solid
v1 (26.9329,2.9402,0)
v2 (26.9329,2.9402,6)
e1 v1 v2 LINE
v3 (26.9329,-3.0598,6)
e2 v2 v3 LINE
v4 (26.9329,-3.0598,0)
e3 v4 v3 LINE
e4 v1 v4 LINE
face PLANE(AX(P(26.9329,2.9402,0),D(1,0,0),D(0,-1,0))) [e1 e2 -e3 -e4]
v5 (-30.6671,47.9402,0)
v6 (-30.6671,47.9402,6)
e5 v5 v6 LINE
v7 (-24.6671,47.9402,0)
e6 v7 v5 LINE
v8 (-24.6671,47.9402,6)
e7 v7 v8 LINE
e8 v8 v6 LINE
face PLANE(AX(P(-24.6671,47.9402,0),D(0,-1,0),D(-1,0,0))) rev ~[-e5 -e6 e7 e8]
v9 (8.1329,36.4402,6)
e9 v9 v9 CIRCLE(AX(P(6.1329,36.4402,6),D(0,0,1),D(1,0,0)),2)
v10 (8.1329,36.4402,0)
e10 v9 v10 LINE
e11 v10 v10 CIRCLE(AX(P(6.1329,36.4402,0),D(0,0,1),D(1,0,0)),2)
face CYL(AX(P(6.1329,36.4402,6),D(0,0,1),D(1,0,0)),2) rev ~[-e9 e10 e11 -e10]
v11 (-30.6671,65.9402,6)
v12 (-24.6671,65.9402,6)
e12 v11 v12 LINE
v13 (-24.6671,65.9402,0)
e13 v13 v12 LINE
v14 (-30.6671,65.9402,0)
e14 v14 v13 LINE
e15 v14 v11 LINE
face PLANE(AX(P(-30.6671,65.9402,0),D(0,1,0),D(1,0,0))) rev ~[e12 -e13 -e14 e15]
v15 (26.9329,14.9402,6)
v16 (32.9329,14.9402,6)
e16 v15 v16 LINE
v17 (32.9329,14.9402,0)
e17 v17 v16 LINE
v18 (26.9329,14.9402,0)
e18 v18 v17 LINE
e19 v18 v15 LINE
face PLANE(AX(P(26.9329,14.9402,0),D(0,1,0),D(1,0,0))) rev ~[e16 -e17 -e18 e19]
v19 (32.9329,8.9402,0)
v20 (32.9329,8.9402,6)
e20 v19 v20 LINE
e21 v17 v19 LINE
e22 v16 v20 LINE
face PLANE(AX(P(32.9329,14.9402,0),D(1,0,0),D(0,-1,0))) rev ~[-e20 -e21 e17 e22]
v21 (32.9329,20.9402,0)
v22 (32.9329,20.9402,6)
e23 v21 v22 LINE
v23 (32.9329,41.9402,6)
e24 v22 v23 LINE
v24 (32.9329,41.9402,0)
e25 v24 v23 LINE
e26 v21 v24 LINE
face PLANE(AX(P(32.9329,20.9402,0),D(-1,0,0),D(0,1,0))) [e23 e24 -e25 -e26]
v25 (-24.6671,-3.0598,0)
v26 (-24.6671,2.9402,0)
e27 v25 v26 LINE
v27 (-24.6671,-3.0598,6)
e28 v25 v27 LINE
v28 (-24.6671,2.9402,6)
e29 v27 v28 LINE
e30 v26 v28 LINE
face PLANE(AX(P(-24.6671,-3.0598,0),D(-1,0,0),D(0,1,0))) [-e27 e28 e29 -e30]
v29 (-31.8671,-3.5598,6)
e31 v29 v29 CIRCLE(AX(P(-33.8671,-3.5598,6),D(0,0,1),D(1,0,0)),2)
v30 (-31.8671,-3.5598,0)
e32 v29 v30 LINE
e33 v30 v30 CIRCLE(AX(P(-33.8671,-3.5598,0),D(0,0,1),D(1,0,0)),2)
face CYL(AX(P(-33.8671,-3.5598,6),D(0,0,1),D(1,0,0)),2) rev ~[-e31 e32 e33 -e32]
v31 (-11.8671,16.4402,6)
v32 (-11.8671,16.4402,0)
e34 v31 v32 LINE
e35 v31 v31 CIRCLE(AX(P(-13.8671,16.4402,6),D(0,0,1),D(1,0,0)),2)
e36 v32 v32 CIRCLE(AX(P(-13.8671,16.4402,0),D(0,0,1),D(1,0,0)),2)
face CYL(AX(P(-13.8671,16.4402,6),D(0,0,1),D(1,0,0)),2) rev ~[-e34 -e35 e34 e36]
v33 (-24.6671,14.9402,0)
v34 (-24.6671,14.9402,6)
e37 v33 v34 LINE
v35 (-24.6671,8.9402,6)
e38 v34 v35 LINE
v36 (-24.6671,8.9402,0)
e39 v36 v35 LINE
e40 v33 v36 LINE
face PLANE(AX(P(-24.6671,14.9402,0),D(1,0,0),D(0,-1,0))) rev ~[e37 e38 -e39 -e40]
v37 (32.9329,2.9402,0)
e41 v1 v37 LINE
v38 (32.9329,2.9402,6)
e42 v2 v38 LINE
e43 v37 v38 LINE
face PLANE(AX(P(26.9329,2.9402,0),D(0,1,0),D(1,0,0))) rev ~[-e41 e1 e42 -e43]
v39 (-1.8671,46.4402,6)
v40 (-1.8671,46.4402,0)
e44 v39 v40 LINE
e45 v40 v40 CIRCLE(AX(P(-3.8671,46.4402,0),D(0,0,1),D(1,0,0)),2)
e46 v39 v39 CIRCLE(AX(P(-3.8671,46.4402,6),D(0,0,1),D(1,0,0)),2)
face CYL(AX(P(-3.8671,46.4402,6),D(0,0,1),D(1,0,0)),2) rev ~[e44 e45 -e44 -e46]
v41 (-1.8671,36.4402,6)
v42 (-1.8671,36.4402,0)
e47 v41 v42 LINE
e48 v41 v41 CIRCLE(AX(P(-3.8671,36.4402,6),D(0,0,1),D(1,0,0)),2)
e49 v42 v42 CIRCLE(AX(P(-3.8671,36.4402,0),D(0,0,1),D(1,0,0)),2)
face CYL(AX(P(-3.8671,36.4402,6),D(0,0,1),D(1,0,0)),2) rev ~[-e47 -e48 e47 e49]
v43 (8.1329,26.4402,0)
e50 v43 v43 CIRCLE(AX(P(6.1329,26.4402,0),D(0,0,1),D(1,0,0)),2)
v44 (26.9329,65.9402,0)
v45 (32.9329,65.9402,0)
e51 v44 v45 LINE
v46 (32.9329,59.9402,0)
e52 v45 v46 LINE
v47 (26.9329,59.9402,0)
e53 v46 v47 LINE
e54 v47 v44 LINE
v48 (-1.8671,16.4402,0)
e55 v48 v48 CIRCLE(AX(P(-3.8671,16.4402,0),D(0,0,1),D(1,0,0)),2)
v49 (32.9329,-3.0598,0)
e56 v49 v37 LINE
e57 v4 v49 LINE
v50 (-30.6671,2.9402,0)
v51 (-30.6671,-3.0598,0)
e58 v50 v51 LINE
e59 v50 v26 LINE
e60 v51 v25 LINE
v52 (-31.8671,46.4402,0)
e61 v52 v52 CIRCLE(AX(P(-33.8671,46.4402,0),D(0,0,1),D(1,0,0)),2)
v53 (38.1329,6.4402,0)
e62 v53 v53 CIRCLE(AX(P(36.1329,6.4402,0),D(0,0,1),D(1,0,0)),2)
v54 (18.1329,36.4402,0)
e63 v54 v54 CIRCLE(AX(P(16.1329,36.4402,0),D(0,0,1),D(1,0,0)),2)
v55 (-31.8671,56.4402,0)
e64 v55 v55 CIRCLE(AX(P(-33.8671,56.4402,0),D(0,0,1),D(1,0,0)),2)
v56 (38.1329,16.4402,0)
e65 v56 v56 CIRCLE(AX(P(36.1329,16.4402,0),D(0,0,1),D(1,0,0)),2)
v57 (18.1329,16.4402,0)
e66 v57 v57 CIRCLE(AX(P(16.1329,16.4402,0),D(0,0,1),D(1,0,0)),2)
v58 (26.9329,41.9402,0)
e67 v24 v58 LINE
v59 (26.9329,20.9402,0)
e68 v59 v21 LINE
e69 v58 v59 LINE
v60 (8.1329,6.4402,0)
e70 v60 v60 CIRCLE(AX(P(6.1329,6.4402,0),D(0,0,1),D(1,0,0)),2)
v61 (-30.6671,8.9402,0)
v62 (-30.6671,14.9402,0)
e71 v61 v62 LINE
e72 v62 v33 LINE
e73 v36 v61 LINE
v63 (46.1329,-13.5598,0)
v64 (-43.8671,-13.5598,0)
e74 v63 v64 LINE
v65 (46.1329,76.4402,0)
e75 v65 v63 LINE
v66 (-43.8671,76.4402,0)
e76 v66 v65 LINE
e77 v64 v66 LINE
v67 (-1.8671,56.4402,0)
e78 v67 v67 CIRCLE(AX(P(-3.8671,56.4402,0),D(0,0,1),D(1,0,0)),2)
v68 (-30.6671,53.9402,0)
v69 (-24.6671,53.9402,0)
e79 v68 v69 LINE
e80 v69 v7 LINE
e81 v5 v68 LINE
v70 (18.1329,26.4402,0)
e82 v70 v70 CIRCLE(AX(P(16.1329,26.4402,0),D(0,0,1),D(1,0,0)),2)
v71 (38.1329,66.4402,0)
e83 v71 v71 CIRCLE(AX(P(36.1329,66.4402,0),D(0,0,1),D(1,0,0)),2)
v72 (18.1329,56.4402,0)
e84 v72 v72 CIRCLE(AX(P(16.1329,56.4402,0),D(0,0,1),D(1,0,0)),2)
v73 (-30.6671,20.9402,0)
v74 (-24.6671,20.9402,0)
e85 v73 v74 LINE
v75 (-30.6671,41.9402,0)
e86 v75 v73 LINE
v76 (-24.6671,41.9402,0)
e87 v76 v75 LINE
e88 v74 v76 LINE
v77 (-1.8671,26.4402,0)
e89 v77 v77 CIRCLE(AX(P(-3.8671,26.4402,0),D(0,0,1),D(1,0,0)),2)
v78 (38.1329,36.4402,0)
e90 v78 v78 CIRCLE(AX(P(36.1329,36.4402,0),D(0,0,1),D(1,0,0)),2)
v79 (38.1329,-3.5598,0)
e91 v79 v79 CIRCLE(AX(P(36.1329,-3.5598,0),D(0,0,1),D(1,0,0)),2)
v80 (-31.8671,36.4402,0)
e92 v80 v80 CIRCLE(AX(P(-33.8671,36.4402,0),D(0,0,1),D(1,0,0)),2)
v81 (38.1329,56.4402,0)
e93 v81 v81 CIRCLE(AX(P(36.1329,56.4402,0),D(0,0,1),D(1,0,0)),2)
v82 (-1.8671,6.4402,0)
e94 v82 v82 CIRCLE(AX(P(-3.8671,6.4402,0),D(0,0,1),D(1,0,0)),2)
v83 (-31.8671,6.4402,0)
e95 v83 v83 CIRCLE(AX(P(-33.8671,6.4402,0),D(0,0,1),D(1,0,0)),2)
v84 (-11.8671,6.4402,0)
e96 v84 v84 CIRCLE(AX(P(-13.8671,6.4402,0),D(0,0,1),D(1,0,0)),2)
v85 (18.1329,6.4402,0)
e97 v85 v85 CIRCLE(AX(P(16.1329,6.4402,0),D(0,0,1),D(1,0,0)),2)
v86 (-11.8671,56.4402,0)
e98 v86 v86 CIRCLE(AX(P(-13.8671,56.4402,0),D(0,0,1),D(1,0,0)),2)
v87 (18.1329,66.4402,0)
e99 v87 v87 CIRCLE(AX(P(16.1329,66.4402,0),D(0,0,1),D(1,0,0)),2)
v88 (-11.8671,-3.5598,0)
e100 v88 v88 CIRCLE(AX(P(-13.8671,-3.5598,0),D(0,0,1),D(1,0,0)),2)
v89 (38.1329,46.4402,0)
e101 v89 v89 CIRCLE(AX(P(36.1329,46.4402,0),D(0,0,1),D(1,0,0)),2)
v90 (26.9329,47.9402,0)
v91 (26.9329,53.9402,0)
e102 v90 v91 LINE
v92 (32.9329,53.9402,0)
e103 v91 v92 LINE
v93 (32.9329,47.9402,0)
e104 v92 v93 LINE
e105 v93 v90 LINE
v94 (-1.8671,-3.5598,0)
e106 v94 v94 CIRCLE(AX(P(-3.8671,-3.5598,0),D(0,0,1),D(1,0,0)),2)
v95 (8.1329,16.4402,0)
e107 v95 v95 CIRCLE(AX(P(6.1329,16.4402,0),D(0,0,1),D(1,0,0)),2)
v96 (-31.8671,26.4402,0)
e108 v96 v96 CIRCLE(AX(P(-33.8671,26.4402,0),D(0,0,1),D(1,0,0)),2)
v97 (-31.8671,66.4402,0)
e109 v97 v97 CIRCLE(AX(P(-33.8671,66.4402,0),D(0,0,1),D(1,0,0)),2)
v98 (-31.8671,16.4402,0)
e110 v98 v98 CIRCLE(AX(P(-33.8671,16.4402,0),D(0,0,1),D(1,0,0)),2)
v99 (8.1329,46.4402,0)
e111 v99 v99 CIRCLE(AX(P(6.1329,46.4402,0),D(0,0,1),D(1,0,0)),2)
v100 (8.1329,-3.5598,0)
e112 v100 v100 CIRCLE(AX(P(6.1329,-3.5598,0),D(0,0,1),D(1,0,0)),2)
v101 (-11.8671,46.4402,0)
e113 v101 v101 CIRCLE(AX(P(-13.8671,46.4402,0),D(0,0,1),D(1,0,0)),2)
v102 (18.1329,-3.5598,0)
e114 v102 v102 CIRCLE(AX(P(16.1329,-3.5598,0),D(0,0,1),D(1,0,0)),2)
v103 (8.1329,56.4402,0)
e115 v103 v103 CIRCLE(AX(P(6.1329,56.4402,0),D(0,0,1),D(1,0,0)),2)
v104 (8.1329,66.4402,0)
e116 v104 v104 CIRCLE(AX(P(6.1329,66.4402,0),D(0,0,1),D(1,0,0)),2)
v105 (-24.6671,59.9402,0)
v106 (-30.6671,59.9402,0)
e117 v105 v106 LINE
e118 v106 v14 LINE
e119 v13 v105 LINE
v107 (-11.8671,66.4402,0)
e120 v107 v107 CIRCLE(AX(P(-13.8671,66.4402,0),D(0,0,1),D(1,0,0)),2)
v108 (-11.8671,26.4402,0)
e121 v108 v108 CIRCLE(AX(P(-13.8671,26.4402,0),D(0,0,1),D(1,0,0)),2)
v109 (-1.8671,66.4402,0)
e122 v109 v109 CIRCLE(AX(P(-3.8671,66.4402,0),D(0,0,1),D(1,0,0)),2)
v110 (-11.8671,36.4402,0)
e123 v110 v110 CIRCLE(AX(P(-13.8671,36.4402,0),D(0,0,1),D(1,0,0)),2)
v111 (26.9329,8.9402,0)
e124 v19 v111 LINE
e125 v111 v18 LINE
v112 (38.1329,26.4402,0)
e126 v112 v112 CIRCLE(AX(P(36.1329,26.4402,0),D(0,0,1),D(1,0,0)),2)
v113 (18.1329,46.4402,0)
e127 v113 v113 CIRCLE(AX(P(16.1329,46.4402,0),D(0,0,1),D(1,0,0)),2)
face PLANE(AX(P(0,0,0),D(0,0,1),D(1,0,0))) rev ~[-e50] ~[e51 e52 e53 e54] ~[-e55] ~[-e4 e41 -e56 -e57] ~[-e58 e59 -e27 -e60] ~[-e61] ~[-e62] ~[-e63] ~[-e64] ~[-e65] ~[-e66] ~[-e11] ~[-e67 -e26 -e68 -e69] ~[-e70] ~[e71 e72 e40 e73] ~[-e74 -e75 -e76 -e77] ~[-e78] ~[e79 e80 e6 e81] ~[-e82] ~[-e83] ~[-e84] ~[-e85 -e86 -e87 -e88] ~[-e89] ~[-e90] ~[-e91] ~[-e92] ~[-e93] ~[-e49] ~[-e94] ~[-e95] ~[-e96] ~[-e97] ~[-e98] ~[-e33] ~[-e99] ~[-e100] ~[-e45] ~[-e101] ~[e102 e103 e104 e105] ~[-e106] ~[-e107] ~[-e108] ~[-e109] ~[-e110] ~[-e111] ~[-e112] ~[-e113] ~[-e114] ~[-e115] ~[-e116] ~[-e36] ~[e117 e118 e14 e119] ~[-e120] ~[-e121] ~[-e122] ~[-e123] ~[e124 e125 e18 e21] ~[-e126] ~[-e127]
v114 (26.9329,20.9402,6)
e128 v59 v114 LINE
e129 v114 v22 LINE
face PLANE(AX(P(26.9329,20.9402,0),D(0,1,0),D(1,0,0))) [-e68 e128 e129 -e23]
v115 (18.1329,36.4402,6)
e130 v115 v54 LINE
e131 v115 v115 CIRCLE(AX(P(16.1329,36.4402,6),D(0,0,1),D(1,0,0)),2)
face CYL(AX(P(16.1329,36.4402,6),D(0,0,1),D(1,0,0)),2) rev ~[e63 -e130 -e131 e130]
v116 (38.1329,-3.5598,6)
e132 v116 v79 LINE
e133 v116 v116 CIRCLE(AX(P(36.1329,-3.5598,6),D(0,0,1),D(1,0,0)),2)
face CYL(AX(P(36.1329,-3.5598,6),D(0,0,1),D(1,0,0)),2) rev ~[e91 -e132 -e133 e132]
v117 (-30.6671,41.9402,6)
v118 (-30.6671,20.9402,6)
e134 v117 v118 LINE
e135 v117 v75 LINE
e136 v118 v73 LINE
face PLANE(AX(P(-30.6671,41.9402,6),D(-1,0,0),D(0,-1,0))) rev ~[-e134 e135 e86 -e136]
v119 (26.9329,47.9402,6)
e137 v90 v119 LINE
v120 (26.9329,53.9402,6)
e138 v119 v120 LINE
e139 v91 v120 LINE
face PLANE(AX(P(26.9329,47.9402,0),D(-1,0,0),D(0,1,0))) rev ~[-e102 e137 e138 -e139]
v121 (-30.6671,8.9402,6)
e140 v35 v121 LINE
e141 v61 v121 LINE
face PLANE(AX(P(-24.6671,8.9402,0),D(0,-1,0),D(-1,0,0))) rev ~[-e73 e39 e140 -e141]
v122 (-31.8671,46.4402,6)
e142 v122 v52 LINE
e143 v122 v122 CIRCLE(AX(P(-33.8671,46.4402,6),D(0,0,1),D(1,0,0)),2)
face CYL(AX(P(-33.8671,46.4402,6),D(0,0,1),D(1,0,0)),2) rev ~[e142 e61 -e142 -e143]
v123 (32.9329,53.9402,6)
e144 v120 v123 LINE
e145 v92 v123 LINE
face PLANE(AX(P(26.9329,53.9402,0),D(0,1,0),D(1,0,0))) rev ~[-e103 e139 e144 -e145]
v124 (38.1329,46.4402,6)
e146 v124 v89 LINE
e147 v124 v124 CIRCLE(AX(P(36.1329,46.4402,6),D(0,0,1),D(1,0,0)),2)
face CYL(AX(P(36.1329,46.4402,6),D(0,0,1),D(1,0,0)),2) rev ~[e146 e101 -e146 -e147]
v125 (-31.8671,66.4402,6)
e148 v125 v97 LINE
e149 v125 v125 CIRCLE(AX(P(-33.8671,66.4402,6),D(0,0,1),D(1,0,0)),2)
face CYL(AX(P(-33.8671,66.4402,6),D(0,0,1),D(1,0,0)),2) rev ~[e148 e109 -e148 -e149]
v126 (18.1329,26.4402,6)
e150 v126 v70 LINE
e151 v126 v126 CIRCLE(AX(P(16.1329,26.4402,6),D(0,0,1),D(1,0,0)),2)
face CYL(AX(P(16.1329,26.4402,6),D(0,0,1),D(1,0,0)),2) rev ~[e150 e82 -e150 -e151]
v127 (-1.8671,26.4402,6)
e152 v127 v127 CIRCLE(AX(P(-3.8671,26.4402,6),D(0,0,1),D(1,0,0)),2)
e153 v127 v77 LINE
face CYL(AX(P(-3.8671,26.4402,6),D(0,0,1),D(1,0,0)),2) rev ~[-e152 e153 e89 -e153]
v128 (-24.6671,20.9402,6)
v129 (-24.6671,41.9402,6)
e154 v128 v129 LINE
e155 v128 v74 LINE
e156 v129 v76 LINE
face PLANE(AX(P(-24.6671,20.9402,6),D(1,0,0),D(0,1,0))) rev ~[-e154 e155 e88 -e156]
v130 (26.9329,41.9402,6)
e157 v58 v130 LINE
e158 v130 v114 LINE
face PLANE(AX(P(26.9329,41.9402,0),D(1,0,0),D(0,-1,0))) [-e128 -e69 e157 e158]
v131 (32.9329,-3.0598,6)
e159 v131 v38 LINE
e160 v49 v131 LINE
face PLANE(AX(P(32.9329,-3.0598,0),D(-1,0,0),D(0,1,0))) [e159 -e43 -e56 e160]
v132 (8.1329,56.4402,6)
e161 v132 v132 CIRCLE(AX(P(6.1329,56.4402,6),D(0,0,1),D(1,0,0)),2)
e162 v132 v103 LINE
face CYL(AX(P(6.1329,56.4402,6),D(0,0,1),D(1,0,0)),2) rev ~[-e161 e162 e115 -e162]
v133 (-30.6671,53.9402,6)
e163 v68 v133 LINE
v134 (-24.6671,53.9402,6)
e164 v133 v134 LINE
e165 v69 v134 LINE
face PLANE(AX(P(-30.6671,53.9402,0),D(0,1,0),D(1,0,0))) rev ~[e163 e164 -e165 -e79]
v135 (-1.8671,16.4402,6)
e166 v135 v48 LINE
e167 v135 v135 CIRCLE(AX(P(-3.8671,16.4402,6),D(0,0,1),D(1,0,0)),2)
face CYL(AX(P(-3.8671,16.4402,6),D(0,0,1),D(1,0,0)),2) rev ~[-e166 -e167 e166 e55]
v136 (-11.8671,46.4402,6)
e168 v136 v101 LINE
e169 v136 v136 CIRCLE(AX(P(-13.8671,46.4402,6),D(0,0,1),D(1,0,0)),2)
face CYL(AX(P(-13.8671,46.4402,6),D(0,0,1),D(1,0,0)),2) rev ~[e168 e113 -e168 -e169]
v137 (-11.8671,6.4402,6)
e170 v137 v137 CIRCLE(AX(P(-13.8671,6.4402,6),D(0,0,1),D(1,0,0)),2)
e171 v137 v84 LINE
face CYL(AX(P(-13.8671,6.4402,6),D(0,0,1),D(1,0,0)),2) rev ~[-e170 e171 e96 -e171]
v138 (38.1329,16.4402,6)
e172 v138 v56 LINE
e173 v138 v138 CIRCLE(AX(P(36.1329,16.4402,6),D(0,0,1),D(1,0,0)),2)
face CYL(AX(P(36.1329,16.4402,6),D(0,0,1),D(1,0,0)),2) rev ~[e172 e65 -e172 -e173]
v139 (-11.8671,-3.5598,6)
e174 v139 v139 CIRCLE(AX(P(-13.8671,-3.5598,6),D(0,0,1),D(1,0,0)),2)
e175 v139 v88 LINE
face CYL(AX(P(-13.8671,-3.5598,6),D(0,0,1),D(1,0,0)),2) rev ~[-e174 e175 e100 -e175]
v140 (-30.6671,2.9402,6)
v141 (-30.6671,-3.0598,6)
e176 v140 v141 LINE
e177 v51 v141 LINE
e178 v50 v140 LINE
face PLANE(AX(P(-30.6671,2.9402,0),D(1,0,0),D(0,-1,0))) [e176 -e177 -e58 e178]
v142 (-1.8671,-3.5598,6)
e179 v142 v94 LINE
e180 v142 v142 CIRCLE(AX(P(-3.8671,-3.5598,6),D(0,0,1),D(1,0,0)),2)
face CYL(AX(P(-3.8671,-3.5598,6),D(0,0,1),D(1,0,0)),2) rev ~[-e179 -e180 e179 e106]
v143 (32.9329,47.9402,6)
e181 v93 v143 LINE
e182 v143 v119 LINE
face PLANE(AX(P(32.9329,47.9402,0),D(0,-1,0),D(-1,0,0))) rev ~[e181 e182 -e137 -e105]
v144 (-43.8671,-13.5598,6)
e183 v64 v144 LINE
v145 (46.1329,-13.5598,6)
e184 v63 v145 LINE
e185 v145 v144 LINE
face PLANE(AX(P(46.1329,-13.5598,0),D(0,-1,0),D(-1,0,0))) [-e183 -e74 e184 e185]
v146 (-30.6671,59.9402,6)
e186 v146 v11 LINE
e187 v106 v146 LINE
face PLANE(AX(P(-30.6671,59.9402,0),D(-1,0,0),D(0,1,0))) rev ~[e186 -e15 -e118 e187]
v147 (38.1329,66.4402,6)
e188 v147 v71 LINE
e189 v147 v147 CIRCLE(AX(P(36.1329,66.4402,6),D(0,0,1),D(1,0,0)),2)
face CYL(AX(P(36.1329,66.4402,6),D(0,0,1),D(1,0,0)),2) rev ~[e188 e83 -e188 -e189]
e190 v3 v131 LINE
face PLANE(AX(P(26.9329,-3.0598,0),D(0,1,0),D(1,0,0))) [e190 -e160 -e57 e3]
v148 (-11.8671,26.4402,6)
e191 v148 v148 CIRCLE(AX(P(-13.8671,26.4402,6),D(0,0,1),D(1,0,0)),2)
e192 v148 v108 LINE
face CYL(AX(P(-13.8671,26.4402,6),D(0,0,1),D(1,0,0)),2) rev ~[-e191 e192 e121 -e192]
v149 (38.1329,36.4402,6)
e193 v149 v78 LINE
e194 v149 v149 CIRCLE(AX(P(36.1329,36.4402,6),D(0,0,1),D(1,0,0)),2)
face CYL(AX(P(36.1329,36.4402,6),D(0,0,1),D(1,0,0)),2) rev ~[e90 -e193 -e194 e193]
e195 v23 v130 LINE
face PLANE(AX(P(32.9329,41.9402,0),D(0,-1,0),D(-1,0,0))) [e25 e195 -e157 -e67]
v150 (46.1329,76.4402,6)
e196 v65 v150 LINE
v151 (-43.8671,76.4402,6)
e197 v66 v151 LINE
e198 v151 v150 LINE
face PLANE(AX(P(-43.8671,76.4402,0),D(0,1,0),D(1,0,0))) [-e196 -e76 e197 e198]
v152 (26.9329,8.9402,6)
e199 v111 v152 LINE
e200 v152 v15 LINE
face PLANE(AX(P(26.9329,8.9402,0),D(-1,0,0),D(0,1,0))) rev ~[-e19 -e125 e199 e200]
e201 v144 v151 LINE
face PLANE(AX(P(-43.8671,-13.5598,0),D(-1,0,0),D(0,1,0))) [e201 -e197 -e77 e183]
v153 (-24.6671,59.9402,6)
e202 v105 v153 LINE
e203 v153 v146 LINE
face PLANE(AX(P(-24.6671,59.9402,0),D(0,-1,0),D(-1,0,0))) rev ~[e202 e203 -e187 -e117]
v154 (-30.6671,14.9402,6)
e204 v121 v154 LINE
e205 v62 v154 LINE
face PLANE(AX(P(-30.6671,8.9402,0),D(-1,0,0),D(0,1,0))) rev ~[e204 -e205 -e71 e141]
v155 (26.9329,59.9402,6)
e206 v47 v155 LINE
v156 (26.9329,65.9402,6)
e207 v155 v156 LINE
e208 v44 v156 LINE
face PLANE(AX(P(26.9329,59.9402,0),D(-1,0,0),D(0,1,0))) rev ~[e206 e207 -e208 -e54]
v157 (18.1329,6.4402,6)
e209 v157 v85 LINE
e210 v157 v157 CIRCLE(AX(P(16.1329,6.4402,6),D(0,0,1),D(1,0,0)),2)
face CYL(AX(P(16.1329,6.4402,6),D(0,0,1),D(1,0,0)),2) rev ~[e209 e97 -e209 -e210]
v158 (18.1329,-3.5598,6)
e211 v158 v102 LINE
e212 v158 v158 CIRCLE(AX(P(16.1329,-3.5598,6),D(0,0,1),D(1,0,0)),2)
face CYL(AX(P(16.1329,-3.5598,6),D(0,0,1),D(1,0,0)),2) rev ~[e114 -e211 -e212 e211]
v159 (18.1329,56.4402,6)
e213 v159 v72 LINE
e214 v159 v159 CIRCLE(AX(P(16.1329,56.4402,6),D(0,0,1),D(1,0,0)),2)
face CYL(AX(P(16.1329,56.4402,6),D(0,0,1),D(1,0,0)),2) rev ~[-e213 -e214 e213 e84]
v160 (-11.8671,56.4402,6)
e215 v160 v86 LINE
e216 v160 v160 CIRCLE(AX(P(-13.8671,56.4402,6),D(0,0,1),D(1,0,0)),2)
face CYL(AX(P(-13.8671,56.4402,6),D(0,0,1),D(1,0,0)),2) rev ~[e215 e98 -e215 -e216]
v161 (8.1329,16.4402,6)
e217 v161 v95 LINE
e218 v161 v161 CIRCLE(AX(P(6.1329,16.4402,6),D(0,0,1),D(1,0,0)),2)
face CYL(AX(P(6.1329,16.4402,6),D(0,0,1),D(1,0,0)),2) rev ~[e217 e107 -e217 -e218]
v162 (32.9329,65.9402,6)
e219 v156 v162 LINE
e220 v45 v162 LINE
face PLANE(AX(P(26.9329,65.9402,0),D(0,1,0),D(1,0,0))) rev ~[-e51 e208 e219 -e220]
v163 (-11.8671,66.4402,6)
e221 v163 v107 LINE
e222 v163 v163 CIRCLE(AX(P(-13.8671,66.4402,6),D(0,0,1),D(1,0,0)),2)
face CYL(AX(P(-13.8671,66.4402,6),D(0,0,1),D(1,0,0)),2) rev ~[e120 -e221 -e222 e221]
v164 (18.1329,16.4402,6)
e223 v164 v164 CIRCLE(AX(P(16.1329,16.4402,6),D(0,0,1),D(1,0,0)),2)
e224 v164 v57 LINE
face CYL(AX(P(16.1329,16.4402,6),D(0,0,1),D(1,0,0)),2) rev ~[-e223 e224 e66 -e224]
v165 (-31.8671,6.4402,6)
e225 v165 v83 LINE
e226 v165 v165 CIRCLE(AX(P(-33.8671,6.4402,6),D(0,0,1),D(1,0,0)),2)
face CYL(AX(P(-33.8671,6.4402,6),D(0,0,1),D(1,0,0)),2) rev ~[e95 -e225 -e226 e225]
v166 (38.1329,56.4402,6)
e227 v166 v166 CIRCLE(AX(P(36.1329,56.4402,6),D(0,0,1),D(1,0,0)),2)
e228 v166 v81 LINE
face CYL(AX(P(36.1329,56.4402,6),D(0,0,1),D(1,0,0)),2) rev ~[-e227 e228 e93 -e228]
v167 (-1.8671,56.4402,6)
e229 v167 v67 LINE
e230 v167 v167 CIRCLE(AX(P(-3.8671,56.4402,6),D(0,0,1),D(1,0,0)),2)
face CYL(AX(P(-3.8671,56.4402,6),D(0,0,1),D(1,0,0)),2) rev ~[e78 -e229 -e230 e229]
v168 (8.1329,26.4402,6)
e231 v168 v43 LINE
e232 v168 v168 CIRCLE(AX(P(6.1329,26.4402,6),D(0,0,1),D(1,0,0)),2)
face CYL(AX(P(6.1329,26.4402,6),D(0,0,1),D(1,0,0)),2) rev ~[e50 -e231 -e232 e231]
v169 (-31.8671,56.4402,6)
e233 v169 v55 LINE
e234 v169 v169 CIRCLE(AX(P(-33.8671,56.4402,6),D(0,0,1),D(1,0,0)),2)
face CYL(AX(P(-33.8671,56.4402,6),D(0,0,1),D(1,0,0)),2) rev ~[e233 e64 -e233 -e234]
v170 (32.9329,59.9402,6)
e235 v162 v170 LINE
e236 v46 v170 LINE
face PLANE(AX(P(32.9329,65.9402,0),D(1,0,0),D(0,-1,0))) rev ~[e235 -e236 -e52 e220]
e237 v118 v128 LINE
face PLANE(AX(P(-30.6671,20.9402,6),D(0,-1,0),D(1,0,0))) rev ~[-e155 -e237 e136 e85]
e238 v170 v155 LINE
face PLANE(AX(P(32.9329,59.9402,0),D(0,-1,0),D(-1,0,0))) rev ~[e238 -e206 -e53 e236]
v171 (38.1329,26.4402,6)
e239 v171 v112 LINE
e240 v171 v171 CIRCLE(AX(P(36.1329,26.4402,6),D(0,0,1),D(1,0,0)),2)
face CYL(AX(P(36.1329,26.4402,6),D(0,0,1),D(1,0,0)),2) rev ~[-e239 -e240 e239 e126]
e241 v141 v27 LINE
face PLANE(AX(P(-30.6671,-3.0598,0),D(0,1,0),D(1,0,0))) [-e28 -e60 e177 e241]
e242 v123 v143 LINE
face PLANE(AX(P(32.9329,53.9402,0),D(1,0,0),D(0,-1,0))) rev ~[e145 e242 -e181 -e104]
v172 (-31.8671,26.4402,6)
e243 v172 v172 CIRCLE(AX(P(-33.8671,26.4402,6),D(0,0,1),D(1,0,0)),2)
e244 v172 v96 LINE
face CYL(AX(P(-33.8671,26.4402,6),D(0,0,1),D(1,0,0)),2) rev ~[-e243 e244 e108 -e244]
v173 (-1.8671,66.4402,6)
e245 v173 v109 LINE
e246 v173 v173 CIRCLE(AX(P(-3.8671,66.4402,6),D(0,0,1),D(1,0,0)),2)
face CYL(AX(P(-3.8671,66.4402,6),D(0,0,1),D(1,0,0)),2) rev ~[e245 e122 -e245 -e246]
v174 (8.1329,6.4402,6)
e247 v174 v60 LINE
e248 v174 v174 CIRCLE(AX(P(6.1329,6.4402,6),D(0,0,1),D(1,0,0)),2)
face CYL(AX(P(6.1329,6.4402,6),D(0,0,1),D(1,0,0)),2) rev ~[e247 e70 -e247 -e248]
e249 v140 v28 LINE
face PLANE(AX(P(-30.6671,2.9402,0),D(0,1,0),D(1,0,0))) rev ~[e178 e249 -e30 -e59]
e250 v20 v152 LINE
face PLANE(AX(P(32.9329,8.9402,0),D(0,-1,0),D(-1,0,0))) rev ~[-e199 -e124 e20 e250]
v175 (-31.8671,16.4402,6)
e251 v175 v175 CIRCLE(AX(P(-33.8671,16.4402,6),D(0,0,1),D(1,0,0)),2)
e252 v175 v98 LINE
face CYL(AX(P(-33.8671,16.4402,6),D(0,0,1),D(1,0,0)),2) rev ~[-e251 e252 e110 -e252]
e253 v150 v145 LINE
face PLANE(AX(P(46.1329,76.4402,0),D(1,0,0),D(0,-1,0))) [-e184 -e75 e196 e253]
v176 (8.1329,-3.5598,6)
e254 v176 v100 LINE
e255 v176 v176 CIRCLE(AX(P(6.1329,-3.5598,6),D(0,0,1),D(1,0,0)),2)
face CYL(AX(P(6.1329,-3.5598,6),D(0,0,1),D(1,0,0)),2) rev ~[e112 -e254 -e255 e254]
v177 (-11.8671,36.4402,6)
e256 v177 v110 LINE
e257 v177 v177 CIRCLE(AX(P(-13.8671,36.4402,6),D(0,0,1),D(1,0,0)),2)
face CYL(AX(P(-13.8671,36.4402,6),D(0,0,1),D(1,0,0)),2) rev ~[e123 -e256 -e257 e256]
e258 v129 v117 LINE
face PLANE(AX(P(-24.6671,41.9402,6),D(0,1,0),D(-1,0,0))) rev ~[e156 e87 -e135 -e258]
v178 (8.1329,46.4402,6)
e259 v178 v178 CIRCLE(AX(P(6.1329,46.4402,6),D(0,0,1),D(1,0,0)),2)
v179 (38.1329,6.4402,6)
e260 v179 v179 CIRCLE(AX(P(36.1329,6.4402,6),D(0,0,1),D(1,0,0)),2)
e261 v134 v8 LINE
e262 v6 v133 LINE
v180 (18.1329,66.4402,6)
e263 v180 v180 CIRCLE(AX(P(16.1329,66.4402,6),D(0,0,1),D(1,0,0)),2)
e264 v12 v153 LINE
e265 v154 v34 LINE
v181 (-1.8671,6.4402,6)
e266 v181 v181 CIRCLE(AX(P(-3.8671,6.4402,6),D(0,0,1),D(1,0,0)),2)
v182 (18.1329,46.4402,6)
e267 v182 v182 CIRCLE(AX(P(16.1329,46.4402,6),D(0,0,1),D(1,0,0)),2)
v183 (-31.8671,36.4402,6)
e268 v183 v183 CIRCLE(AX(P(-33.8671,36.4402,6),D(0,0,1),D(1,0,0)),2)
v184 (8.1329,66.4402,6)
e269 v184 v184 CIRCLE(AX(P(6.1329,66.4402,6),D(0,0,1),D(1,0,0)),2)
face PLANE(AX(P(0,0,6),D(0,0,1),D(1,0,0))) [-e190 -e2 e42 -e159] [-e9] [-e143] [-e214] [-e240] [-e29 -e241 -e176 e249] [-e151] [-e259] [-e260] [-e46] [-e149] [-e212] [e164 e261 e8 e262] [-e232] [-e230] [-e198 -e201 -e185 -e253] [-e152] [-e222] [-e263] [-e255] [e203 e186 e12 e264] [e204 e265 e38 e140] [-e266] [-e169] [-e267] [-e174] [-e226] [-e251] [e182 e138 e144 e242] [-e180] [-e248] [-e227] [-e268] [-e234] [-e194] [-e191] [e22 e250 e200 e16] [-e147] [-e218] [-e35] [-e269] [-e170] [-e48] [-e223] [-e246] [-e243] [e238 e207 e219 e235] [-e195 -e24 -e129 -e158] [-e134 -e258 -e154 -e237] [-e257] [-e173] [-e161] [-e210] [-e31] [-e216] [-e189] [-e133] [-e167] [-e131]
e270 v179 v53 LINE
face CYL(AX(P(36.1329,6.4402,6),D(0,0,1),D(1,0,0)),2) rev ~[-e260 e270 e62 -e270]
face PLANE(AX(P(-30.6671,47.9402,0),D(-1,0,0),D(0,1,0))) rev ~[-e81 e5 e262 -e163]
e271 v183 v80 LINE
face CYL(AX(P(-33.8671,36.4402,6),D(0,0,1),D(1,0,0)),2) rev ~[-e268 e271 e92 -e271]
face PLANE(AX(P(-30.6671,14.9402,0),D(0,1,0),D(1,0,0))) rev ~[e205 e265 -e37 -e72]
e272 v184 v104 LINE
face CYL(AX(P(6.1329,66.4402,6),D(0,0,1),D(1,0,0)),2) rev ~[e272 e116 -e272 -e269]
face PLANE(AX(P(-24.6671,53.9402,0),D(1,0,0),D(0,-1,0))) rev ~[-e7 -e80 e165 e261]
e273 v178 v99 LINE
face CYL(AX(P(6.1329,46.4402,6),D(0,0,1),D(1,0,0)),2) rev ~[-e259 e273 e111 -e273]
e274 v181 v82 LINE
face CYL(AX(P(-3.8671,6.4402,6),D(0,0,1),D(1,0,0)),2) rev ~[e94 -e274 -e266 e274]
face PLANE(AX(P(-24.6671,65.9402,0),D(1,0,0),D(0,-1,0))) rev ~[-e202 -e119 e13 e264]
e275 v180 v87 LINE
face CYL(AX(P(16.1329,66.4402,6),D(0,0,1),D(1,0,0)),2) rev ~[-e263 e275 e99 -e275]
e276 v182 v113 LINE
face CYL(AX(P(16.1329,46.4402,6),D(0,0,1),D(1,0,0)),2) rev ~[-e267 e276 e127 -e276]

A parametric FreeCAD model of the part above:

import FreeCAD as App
import Part
import Sketcher

V = App.Vector
Q = App.Units.Quantity


def add_polygon(sketch, points):
    """Adds a closed chain of lines whose ends are joined by coincident constraints."""
    first, n = sketch.GeometryCount, len(points)
    for a, b in zip(points, points[1:] + points[:1]):
        sketch.addGeometry(Part.LineSegment(App.Vector(*a, 0), App.Vector(*b, 0)), False)
    for i in range(n):
        sketch.addConstraint(Sketcher.Constraint("Coincident", first + i, 2, first + (i + 1) % n, 1))

doc = App.newDocument("Part")
body = doc.addObject("PartDesign::Body", "Body")

# Sketch on XY plane
sketch1 = doc.addObject("Sketcher::SketchObject", "Sketch")
body.addObject(sketch1)
sketch1.AttachmentSupport = (doc.XY_Plane, [""])
sketch1.MapMode = "FlatFace"
add_polygon(sketch1, [(46, 76), (-44, 76), (-44, -14), (46, -14)])  # lines 0-3
sketch1.addConstraint([
    Sketcher.Constraint("Horizontal", 0),
    Sketcher.Constraint("Vertical", 1),
    Sketcher.Constraint("Horizontal", 2),
    Sketcher.Constraint("Vertical", 3),
    Sketcher.Constraint("Equal", 2, 1),
    Sketcher.Constraint("DistanceX", 0, 2, 0, 1, Q("90 mm")),
    Sketcher.Constraint("DistanceX", 0, 2, -1, 1, Q("43.867 mm")),
    Sketcher.Constraint("DistanceY", -1, 1, 0, 2, Q("76.4402 mm")),
])
pad1 = doc.addObject("PartDesign::Pad", "Pad")
body.addObject(pad1)
pad1.Profile = sketch1
pad1.Length = 6

# Sketch on XY plane
sketch2 = doc.addObject("Sketcher::SketchObject", "Sketch001")
body.addObject(sketch2)
sketch2.AttachmentSupport = (doc.XY_Plane, [""])
sketch2.MapMode = "FlatFace"
add_polygon(sketch2, [(-25, 15), (-25, 9), (-31, 9), (-31, 15)])  # lines 0-3
add_polygon(sketch2, [(-31, 3), (-25, 3), (-25, -3), (-31, -3)])  # lines 4-7
add_polygon(sketch2, [(-25, 54), (-25, 48), (-31, 48), (-31, 54)])  # lines 8-11
add_polygon(sketch2, [(-25, 66), (-25, 60), (-31, 60), (-31, 66)])  # lines 12-15
add_polygon(sketch2, [(33, 54), (33, 48), (27, 48), (27, 54)])  # lines 16-19
add_polygon(sketch2, [(33, 66), (33, 60), (27, 60), (27, 66)])  # lines 20-23
add_polygon(sketch2, [(27, 9), (27, 15), (33, 15), (33, 9)])  # lines 24-27
add_polygon(sketch2, [(27, -3), (27, 3), (33, 3), (33, -3)])  # lines 28-31
sketch2.addConstraint([
    Sketcher.Constraint("Vertical", 0),
    Sketcher.Constraint("Horizontal", 1),
    Sketcher.Constraint("Vertical", 2),
    Sketcher.Constraint("Horizontal", 3),
    Sketcher.Constraint("Horizontal", 4),
    Sketcher.Constraint("Vertical", 5),
    Sketcher.Constraint("Horizontal", 6),
    Sketcher.Constraint("Vertical", 7),
    Sketcher.Constraint("Vertical", 8),
    Sketcher.Constraint("Horizontal", 9),
    Sketcher.Constraint("Vertical", 10),
    Sketcher.Constraint("Horizontal", 11),
    Sketcher.Constraint("Vertical", 12),
    Sketcher.Constraint("Horizontal", 13),
    Sketcher.Constraint("Vertical", 14),
    Sketcher.Constraint("Horizontal", 15),
    Sketcher.Constraint("Vertical", 16),
    Sketcher.Constraint("Horizontal", 17),
    Sketcher.Constraint("Vertical", 18),
    Sketcher.Constraint("Horizontal", 19),
    Sketcher.Constraint("Vertical", 20),
    Sketcher.Constraint("Horizontal", 21),
    Sketcher.Constraint("Vertical", 22),
    Sketcher.Constraint("Horizontal", 23),
    Sketcher.Constraint("Vertical", 24),
    Sketcher.Constraint("Horizontal", 25),
    Sketcher.Constraint("Vertical", 26),
    Sketcher.Constraint("Horizontal", 27),
    Sketcher.Constraint("Vertical", 28),
    Sketcher.Constraint("Horizontal", 29),
    Sketcher.Constraint("Vertical", 30),
    Sketcher.Constraint("Horizontal", 31),
    Sketcher.Constraint("Horizontal", 9, 2, 16, 2),
    Sketcher.Constraint("Horizontal", 11, 2, 18, 2),
    Sketcher.Constraint("Horizontal", 13, 2, 20, 2),
    Sketcher.Constraint("Horizontal", 15, 2, 22, 2),
    Sketcher.Constraint("Horizontal", 3, 2, 24, 2),
    Sketcher.Constraint("Horizontal", 1, 2, 26, 2),
    Sketcher.Constraint("Horizontal", 7, 2, 28, 2),
    Sketcher.Constraint("Horizontal", 6, 2, 30, 2),
    Sketcher.Constraint("Vertical", 3, 2, 4, 2),
    Sketcher.Constraint("Vertical", 2, 2, 6, 2),
    Sketcher.Constraint("Vertical", 5, 2, 8, 2),
    Sketcher.Constraint("Vertical", 7, 2, 9, 2),
    Sketcher.Constraint("Vertical", 11, 2, 12, 2),
    Sketcher.Constraint("Vertical", 10, 2, 13, 2),
    Sketcher.Constraint("Vertical", 19, 2, 20, 2),
    Sketcher.Constraint("Vertical", 18, 2, 21, 2),
    Sketcher.Constraint("Vertical", 22, 2, 24, 2),
    Sketcher.Constraint("Vertical", 23, 2, 25, 2),
    Sketcher.Constraint("Vertical", 27, 2, 28, 2),
    Sketcher.Constraint("Vertical", 26, 2, 29, 2),
    Sketcher.Constraint("Equal", 15, 17),
    Sketcher.Constraint("Equal", 31, 0),
    Sketcher.Constraint("Equal", 2, 5),
    Sketcher.Constraint("Equal", 7, 8),
    Sketcher.Constraint("Equal", 10, 12),
    Sketcher.Constraint("DistanceX", 1, 2, 1, 1, Q("6 mm")),
    Sketcher.Constraint("DistanceY", 4, 2, 0, 2, Q("6 mm")),
    Sketcher.Constraint("DistanceY", 11, 2, 12, 2, Q("6 mm")),
    Sketcher.Constraint("DistanceY", 3, 2, 8, 2, Q("33 mm")),
    Sketcher.Constraint("DistanceX", 8, 2, 16, 2, Q("57.6 mm")),
    Sketcher.Constraint("DistanceX", 0, 2, -1, 1, Q("24.667 mm")),
    Sketcher.Constraint("DistanceY", -1, 1, 0, 2, Q("8.9402 mm")),
])
pocket1 = doc.addObject("PartDesign::Pocket", "Pocket")
body.addObject(pocket1)
pocket1.Profile = sketch2
pocket1.Length = 6
pocket1.Reversed = True

# Sketch on XY plane
sketch3 = doc.addObject("Sketcher::SketchObject", "Sketch002")
body.addObject(sketch3)
sketch3.AttachmentSupport = (doc.XY_Plane, [""])
sketch3.MapMode = "FlatFace"
sketch3.AttachmentOffset = App.Placement(V(0, 0, 6), App.Rotation())
sketch3.addGeometry([
    Part.Circle(V(-33.9, -3.6, 0), V(0, 0, 1), 2),  # 0
    Part.Circle(V(-33.9, 6.4, 0), V(0, 0, 1), 2),  # 1
    Part.Circle(V(-33.9, 16.4, 0), V(0, 0, 1), 2),  # 2
    Part.Circle(V(-33.9, 26.4, 0), V(0, 0, 1), 2),  # 3
    Part.Circle(V(-33.9, 36.4, 0), V(0, 0, 1), 2),  # 4
    Part.Circle(V(-33.9, 46.4, 0), V(0, 0, 1), 2),  # 5
    Part.Circle(V(-33.9, 56.4, 0), V(0, 0, 1), 2),  # 6
    Part.Circle(V(-33.9, 66.4, 0), V(0, 0, 1), 2),  # 7
    Part.Circle(V(-13.9, -3.6, 0), V(0, 0, 1), 2),  # 8
    Part.Circle(V(-13.9, 6.4, 0), V(0, 0, 1), 2),  # 9
    Part.Circle(V(-13.9, 16.4, 0), V(0, 0, 1), 2),  # 10
    Part.Circle(V(-13.9, 26.4, 0), V(0, 0, 1), 2),  # 11
    Part.Circle(V(-13.9, 36.4, 0), V(0, 0, 1), 2),  # 12
    Part.Circle(V(-13.9, 46.4, 0), V(0, 0, 1), 2),  # 13
    Part.Circle(V(-13.9, 56.4, 0), V(0, 0, 1), 2),  # 14
    Part.Circle(V(-13.9, 66.4, 0), V(0, 0, 1), 2),  # 15
    Part.Circle(V(-3.9, -3.6, 0), V(0, 0, 1), 2),  # 16
    Part.Circle(V(-3.9, 6.4, 0), V(0, 0, 1), 2),  # 17
    Part.Circle(V(-3.9, 16.4, 0), V(0, 0, 1), 2),  # 18
    Part.Circle(V(-3.9, 26.4, 0), V(0, 0, 1), 2),  # 19
    Part.Circle(V(-3.9, 36.4, 0), V(0, 0, 1), 2),  # 20
    Part.Circle(V(-3.9, 46.4, 0), V(0, 0, 1), 2),  # 21
    Part.Circle(V(-3.9, 56.4, 0), V(0, 0, 1), 2),  # 22
    Part.Circle(V(-3.9, 66.4, 0), V(0, 0, 1), 2),  # 23
    Part.Circle(V(6.1, -3.6, 0), V(0, 0, 1), 2),  # 24
    Part.Circle(V(6.1, 6.4, 0), V(0, 0, 1), 2),  # 25
    Part.Circle(V(6.1, 16.4, 0), V(0, 0, 1), 2),  # 26
    Part.Circle(V(6.1, 26.4, 0), V(0, 0, 1), 2),  # 27
    Part.Circle(V(6.1, 36.4, 0), V(0, 0, 1), 2),  # 28
    Part.Circle(V(6.1, 46.4, 0), V(0, 0, 1), 2),  # 29
    Part.Circle(V(6.1, 56.4, 0), V(0, 0, 1), 2),  # 30
    Part.Circle(V(6.1, 66.4, 0), V(0, 0, 1), 2),  # 31
    Part.Circle(V(16.1, -3.6, 0), V(0, 0, 1), 2),  # 32
    Part.Circle(V(16.1, 6.4, 0), V(0, 0, 1), 2),  # 33
    Part.Circle(V(16.1, 16.4, 0), V(0, 0, 1), 2),  # 34
    Part.Circle(V(16.1, 26.4, 0), V(0, 0, 1), 2),  # 35
    Part.Circle(V(16.1, 36.4, 0), V(0, 0, 1), 2),  # 36
    Part.Circle(V(16.1, 46.4, 0), V(0, 0, 1), 2),  # 37
    Part.Circle(V(16.1, 56.4, 0), V(0, 0, 1), 2),  # 38
    Part.Circle(V(16.1, 66.4, 0), V(0, 0, 1), 2),  # 39
    Part.Circle(V(36.1, -3.6, 0), V(0, 0, 1), 2),  # 40
    Part.Circle(V(36.1, 6.4, 0), V(0, 0, 1), 2),  # 41
    Part.Circle(V(36.1, 16.4, 0), V(0, 0, 1), 2),  # 42
    Part.Circle(V(36.1, 26.4, 0), V(0, 0, 1), 2),  # 43
    Part.Circle(V(36.1, 36.4, 0), V(0, 0, 1), 2),  # 44
    Part.Circle(V(36.1, 46.4, 0), V(0, 0, 1), 2),  # 45
    Part.Circle(V(36.1, 56.4, 0), V(0, 0, 1), 2),  # 46
    Part.Circle(V(36.1, 66.4, 0), V(0, 0, 1), 2),  # 47
], False)
sketch3.addConstraint([
    Sketcher.Constraint("Equal", 0, 1),
    Sketcher.Constraint("Equal", 1, 2),
    Sketcher.Constraint("Equal", 2, 3),
    Sketcher.Constraint("Equal", 3, 4),
    Sketcher.Constraint("Equal", 4, 5),
    Sketcher.Constraint("Equal", 5, 6),
    Sketcher.Constraint("Equal", 6, 7),
    Sketcher.Constraint("Equal", 7, 8),
    Sketcher.Constraint("Equal", 8, 9),
    Sketcher.Constraint("Equal", 9, 10),
    Sketcher.Constraint("Equal", 10, 11),
    Sketcher.Constraint("Equal", 11, 12),
    Sketcher.Constraint("Equal", 12, 13),
    Sketcher.Constraint("Equal", 13, 14),
    Sketcher.Constraint("Equal", 14, 15),
    Sketcher.Constraint("Equal", 15, 16),
    Sketcher.Constraint("Equal", 16, 17),
    Sketcher.Constraint("Equal", 17, 18),
    Sketcher.Constraint("Equal", 18, 19),
    Sketcher.Constraint("Equal", 19, 20),
    Sketcher.Constraint("Equal", 20, 21),
    Sketcher.Constraint("Equal", 21, 22),
    Sketcher.Constraint("Equal", 22, 23),
    Sketcher.Constraint("Equal", 23, 24),
    Sketcher.Constraint("Equal", 24, 25),
    Sketcher.Constraint("Equal", 25, 26),
    Sketcher.Constraint("Equal", 26, 27),
    Sketcher.Constraint("Equal", 27, 28),
    Sketcher.Constraint("Equal", 28, 29),
    Sketcher.Constraint("Equal", 29, 30),
    Sketcher.Constraint("Equal", 30, 31),
    Sketcher.Constraint("Equal", 31, 32),
    Sketcher.Constraint("Equal", 32, 33),
    Sketcher.Constraint("Equal", 33, 34),
    Sketcher.Constraint("Equal", 34, 35),
    Sketcher.Constraint("Equal", 35, 36),
    Sketcher.Constraint("Equal", 36, 37),
    Sketcher.Constraint("Equal", 37, 38),
    Sketcher.Constraint("Equal", 38, 39),
    Sketcher.Constraint("Equal", 39, 40),
    Sketcher.Constraint("Equal", 40, 41),
    Sketcher.Constraint("Equal", 41, 42),
    Sketcher.Constraint("Equal", 42, 43),
    Sketcher.Constraint("Equal", 43, 44),
    Sketcher.Constraint("Equal", 44, 45),
    Sketcher.Constraint("Equal", 45, 46),
    Sketcher.Constraint("Equal", 46, 47),
    Sketcher.Constraint("Horizontal", 0, 3, 8, 3),
    Sketcher.Constraint("Horizontal", 1, 3, 9, 3),
    Sketcher.Constraint("Horizontal", 2, 3, 10, 3),
    Sketcher.Constraint("Horizontal", 3, 3, 11, 3),
    Sketcher.Constraint("Horizontal", 4, 3, 12, 3),
    Sketcher.Constraint("Horizontal", 5, 3, 13, 3),
    Sketcher.Constraint("Horizontal", 6, 3, 14, 3),
    Sketcher.Constraint("Horizontal", 7, 3, 15, 3),
    Sketcher.Constraint("Horizontal", 8, 3, 16, 3),
    Sketcher.Constraint("Horizontal", 9, 3, 17, 3),
    Sketcher.Constraint("Horizontal", 10, 3, 18, 3),
    Sketcher.Constraint("Horizontal", 11, 3, 19, 3),
    Sketcher.Constraint("Horizontal", 12, 3, 20, 3),
    Sketcher.Constraint("Horizontal", 13, 3, 21, 3),
    Sketcher.Constraint("Horizontal", 14, 3, 22, 3),
    Sketcher.Constraint("Horizontal", 15, 3, 23, 3),
    Sketcher.Constraint("Horizontal", 16, 3, 24, 3),
    Sketcher.Constraint("Horizontal", 17, 3, 25, 3),
    Sketcher.Constraint("Horizontal", 18, 3, 26, 3),
    Sketcher.Constraint("Horizontal", 19, 3, 27, 3),
    Sketcher.Constraint("Horizontal", 20, 3, 28, 3),
    Sketcher.Constraint("Horizontal", 21, 3, 29, 3),
    Sketcher.Constraint("Horizontal", 22, 3, 30, 3),
    Sketcher.Constraint("Horizontal", 23, 3, 31, 3),
    Sketcher.Constraint("Horizontal", 24, 3, 32, 3),
    Sketcher.Constraint("Horizontal", 25, 3, 33, 3),
    Sketcher.Constraint("Horizontal", 26, 3, 34, 3),
    Sketcher.Constraint("Horizontal", 27, 3, 35, 3),
    Sketcher.Constraint("Horizontal", 28, 3, 36, 3),
    Sketcher.Constraint("Horizontal", 29, 3, 37, 3),
    Sketcher.Constraint("Horizontal", 30, 3, 38, 3),
    Sketcher.Constraint("Horizontal", 31, 3, 39, 3),
    Sketcher.Constraint("Horizontal", 32, 3, 40, 3),
    Sketcher.Constraint("Horizontal", 33, 3, 41, 3),
    Sketcher.Constraint("Horizontal", 34, 3, 42, 3),
    Sketcher.Constraint("Horizontal", 35, 3, 43, 3),
    Sketcher.Constraint("Horizontal", 36, 3, 44, 3),
    Sketcher.Constraint("Horizontal", 37, 3, 45, 3),
    Sketcher.Constraint("Horizontal", 38, 3, 46, 3),
    Sketcher.Constraint("Horizontal", 39, 3, 47, 3),
    Sketcher.Constraint("Vertical", 0, 3, 1, 3),
    Sketcher.Constraint("Vertical", 1, 3, 2, 3),
    Sketcher.Constraint("Vertical", 2, 3, 3, 3),
    Sketcher.Constraint("Vertical", 3, 3, 4, 3),
    Sketcher.Constraint("Vertical", 4, 3, 5, 3),
    Sketcher.Constraint("Vertical", 5, 3, 6, 3),
    Sketcher.Constraint("Vertical", 6, 3, 7, 3),
    Sketcher.Constraint("Vertical", 8, 3, 9, 3),
    Sketcher.Constraint("Vertical", 9, 3, 10, 3),
    Sketcher.Constraint("Vertical", 10, 3, 11, 3),
    Sketcher.Constraint("Vertical", 11, 3, 12, 3),
    Sketcher.Constraint("Vertical", 12, 3, 13, 3),
    Sketcher.Constraint("Vertical", 13, 3, 14, 3),
    Sketcher.Constraint("Vertical", 14, 3, 15, 3),
    Sketcher.Constraint("Vertical", 16, 3, 17, 3),
    Sketcher.Constraint("Vertical", 17, 3, 18, 3),
    Sketcher.Constraint("Vertical", 18, 3, 19, 3),
    Sketcher.Constraint("Vertical", 19, 3, 20, 3),
    Sketcher.Constraint("Vertical", 20, 3, 21, 3),
    Sketcher.Constraint("Vertical", 21, 3, 22, 3),
    Sketcher.Constraint("Vertical", 22, 3, 23, 3),
    Sketcher.Constraint("Vertical", 24, 3, 25, 3),
    Sketcher.Constraint("Vertical", 25, 3, 26, 3),
    Sketcher.Constraint("Vertical", 26, 3, 27, 3),
    Sketcher.Constraint("Vertical", 27, 3, 28, 3),
    Sketcher.Constraint("Vertical", 28, 3, 29, 3),
    Sketcher.Constraint("Vertical", 29, 3, 30, 3),
    Sketcher.Constraint("Vertical", 30, 3, 31, 3),
    Sketcher.Constraint("Vertical", 32, 3, 33, 3),
    Sketcher.Constraint("Vertical", 33, 3, 34, 3),
    Sketcher.Constraint("Vertical", 34, 3, 35, 3),
    Sketcher.Constraint("Vertical", 35, 3, 36, 3),
    Sketcher.Constraint("Vertical", 36, 3, 37, 3),
    Sketcher.Constraint("Vertical", 37, 3, 38, 3),
    Sketcher.Constraint("Vertical", 38, 3, 39, 3),
    Sketcher.Constraint("Vertical", 40, 3, 41, 3),
    Sketcher.Constraint("Vertical", 41, 3, 42, 3),
    Sketcher.Constraint("Vertical", 42, 3, 43, 3),
    Sketcher.Constraint("Vertical", 43, 3, 44, 3),
    Sketcher.Constraint("Vertical", 44, 3, 45, 3),
    Sketcher.Constraint("Vertical", 45, 3, 46, 3),
    Sketcher.Constraint("Vertical", 46, 3, 47, 3),
    Sketcher.Constraint("Diameter", 0, Q("4 mm")),
    Sketcher.Constraint("DistanceY", 0, 3, 1, 3, Q("10 mm")),
    Sketcher.Constraint("DistanceY", 1, 3, 2, 3, Q("10 mm")),
    Sketcher.Constraint("DistanceY", 2, 3, 3, 3, Q("10 mm")),
    Sketcher.Constraint("DistanceY", 3, 3, 4, 3, Q("10 mm")),
    Sketcher.Constraint("DistanceY", 4, 3, 5, 3, Q("10 mm")),
    Sketcher.Constraint("DistanceY", 5, 3, 6, 3, Q("10 mm")),
    Sketcher.Constraint("DistanceY", 6, 3, 7, 3, Q("10 mm")),
    Sketcher.Constraint("DistanceX", 8, 3, 16, 3, Q("10 mm")),
    Sketcher.Constraint("DistanceX", 16, 3, 24, 3, Q("10 mm")),
    Sketcher.Constraint("DistanceX", 24, 3, 32, 3, Q("10 mm")),
    Sketcher.Constraint("DistanceX", 0, 3, 8, 3, Q("20 mm")),
    Sketcher.Constraint("DistanceX", 32, 3, 40, 3, Q("20 mm")),
    Sketcher.Constraint("DistanceX", 0, 3, -1, 1, Q("33.867 mm")),
    Sketcher.Constraint("DistanceY", 0, 3, -1, 1, Q("3.5598 mm")),
])
pocket2 = doc.addObject("PartDesign::Pocket", "Pocket001")
body.addObject(pocket2)
pocket2.Profile = sketch3
pocket2.Length = 6

# Sketch on XY plane
sketch4 = doc.addObject("Sketcher::SketchObject", "Sketch003")
body.addObject(sketch4)
sketch4.AttachmentSupport = (doc.XY_Plane, [""])
sketch4.MapMode = "FlatFace"
add_polygon(sketch4, [(33, 42), (33, 21), (27, 21), (27, 42)])  # lines 0-3
sketch4.addConstraint([
    Sketcher.Constraint("Vertical", 0),
    Sketcher.Constraint("Horizontal", 1),
    Sketcher.Constraint("Vertical", 2),
    Sketcher.Constraint("Horizontal", 3),
    Sketcher.Constraint("DistanceX", 1, 2, 1, 1, Q("6 mm")),
    Sketcher.Constraint("DistanceY", 0, 2, 0, 1, Q("21 mm")),
    Sketcher.Constraint("DistanceX", -1, 1, 0, 2, Q("32.933 mm")),
    Sketcher.Constraint("DistanceY", -1, 1, 0, 2, Q("20.9402 mm")),
])
pocket3 = doc.addObject("PartDesign::Pocket", "Pocket002")
body.addObject(pocket3)
pocket3.Profile = sketch4
pocket3.Length = 6
pocket3.Reversed = True

# Sketch on XY plane
sketch5 = doc.addObject("Sketcher::SketchObject", "Sketch004")
body.addObject(sketch5)
sketch5.AttachmentSupport = (doc.XY_Plane, [""])
sketch5.MapMode = "FlatFace"
sketch5.AttachmentOffset = App.Placement(V(0, 0, 6), App.Rotation())
add_polygon(sketch5, [(-25, 42), (-31, 42), (-31, 21), (-25, 21)])  # lines 0-3
sketch5.addConstraint([
    Sketcher.Constraint("Horizontal", 0),
    Sketcher.Constraint("Vertical", 1),
    Sketcher.Constraint("Horizontal", 2),
    Sketcher.Constraint("Vertical", 3),
    Sketcher.Constraint("DistanceX", 0, 2, 0, 1, Q("6 mm")),
    Sketcher.Constraint("DistanceY", 1, 2, 1, 1, Q("21 mm")),
    Sketcher.Constraint("DistanceX", 0, 2, -1, 1, Q("30.667 mm")),
    Sketcher.Constraint("DistanceY", -1, 1, 0, 2, Q("41.9402 mm")),
])
pocket4 = doc.addObject("PartDesign::Pocket", "Pocket003")
body.addObject(pocket4)
pocket4.Profile = sketch5
pocket4.Length = 6

doc.recompute()
